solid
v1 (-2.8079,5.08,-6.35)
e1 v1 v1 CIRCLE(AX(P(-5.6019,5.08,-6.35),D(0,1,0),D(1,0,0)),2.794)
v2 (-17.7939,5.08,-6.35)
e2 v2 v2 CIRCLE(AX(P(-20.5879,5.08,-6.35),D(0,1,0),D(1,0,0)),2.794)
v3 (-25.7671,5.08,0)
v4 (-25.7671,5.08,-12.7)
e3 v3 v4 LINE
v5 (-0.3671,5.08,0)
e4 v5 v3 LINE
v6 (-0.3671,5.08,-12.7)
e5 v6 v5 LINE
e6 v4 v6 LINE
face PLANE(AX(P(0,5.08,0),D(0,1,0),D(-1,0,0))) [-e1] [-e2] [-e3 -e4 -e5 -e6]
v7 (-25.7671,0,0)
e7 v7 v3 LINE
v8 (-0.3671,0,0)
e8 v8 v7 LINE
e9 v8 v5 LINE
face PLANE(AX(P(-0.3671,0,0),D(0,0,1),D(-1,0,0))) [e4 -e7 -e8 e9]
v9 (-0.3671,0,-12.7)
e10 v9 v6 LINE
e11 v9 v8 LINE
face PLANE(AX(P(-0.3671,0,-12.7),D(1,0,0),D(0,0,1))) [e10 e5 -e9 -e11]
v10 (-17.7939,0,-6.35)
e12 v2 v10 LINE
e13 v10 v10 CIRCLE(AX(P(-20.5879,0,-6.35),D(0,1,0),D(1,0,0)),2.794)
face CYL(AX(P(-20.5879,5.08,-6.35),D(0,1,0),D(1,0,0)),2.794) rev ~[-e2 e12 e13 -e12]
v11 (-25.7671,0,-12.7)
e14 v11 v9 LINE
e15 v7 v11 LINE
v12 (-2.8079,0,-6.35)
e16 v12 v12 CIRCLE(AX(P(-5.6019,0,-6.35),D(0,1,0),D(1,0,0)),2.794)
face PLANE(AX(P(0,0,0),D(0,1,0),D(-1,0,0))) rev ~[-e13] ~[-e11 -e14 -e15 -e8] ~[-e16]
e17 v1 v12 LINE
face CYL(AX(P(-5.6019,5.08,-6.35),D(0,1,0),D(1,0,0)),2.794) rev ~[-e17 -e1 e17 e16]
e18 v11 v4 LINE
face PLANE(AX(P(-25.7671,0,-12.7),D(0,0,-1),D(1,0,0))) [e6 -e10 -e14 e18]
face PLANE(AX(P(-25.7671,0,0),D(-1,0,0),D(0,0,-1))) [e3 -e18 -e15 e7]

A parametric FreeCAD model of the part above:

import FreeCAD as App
import Part
import Sketcher

V = App.Vector
Q = App.Units.Quantity

doc = App.newDocument("Part")
body = doc.addObject("PartDesign::Body", "Body")

sketch1 = body.newObject("Sketcher::SketchObject", "Sketch")
sketch1.AttachmentSupport = (doc.getObject("XZ_Plane"), [""])
sketch1.MapMode = "FlatFace"
sketch1.addGeometry([
    Part.LineSegment(V(0, -13, 0), V(-26, -13, 0)),
    Part.LineSegment(V(-26, -13, 0), V(-26, 0, 0)),
    Part.LineSegment(V(-26, 0, 0), V(0, 0, 0)),
    Part.LineSegment(V(0, 0, 0), V(0, -13, 0)),
], False)
sketch1.addConstraint([
    Sketcher.Constraint("Coincident", 0, 2, 1, 1),
    Sketcher.Constraint("Coincident", 1, 2, 2, 1),
    Sketcher.Constraint("Coincident", 2, 2, 3, 1),
    Sketcher.Constraint("Coincident", 3, 2, 0, 1),
    Sketcher.Constraint("Horizontal", 0),
    Sketcher.Constraint("Vertical", 1),
    Sketcher.Constraint("Horizontal", 2),
    Sketcher.Constraint("Vertical", 3),
    Sketcher.Constraint("PointOnObject", 1, 2, -1),
    Sketcher.Constraint("DistanceX", 0, 2, 0, 1, Q("1 in")),
    Sketcher.Constraint("DistanceY", 1, 1, 1, 2, Q("0.5 in")),
    Sketcher.Constraint("DistanceX", 0, 2, -1, 1, Q("25.767 mm")),
])
pad1 = body.newObject("PartDesign::Pad", "Pad")
pad1.Profile = sketch1
pad1.Length = Q("0.2 in")
pad1.Reversed = True

sketch2 = body.newObject("Sketcher::SketchObject", "Sketch001")
sketch2.AttachmentSupport = (doc.getObject("XZ_Plane"), [""])
sketch2.MapMode = "FlatFace"
sketch2.AttachmentOffset = App.Placement(V(0, 0, -0.2 * 25.4), App.Rotation())
sketch2.addGeometry([
    Part.Circle(V(-5.6, -6.3, 0), V(0, 0, 1), 2.8),
    Part.Circle(V(-20.6, -6.3, 0), V(0, 0, 1), 2.8),
], False)
sketch2.addConstraint([
    Sketcher.Constraint("Equal", 0, 1),
    Sketcher.Constraint("Horizontal", 0, 3, 1, 3),
    Sketcher.Constraint("Diameter", 0, Q("0.22 in")),
    Sketcher.Constraint("DistanceY", 0, 3, -1, 1, Q("0.25 in")),
    Sketcher.Constraint("DistanceX", 1, 3, 0, 3, Q("0.59 in")),
    Sketcher.Constraint("DistanceX", 0, 3, -1, 1, Q("5.602 mm")),
])
pocket1 = body.newObject("PartDesign::Pocket", "Pocket")
pocket1.Profile = sketch2
pocket1.Length = Q("0.4 in")
pocket1.Reversed = True

doc.recompute()
